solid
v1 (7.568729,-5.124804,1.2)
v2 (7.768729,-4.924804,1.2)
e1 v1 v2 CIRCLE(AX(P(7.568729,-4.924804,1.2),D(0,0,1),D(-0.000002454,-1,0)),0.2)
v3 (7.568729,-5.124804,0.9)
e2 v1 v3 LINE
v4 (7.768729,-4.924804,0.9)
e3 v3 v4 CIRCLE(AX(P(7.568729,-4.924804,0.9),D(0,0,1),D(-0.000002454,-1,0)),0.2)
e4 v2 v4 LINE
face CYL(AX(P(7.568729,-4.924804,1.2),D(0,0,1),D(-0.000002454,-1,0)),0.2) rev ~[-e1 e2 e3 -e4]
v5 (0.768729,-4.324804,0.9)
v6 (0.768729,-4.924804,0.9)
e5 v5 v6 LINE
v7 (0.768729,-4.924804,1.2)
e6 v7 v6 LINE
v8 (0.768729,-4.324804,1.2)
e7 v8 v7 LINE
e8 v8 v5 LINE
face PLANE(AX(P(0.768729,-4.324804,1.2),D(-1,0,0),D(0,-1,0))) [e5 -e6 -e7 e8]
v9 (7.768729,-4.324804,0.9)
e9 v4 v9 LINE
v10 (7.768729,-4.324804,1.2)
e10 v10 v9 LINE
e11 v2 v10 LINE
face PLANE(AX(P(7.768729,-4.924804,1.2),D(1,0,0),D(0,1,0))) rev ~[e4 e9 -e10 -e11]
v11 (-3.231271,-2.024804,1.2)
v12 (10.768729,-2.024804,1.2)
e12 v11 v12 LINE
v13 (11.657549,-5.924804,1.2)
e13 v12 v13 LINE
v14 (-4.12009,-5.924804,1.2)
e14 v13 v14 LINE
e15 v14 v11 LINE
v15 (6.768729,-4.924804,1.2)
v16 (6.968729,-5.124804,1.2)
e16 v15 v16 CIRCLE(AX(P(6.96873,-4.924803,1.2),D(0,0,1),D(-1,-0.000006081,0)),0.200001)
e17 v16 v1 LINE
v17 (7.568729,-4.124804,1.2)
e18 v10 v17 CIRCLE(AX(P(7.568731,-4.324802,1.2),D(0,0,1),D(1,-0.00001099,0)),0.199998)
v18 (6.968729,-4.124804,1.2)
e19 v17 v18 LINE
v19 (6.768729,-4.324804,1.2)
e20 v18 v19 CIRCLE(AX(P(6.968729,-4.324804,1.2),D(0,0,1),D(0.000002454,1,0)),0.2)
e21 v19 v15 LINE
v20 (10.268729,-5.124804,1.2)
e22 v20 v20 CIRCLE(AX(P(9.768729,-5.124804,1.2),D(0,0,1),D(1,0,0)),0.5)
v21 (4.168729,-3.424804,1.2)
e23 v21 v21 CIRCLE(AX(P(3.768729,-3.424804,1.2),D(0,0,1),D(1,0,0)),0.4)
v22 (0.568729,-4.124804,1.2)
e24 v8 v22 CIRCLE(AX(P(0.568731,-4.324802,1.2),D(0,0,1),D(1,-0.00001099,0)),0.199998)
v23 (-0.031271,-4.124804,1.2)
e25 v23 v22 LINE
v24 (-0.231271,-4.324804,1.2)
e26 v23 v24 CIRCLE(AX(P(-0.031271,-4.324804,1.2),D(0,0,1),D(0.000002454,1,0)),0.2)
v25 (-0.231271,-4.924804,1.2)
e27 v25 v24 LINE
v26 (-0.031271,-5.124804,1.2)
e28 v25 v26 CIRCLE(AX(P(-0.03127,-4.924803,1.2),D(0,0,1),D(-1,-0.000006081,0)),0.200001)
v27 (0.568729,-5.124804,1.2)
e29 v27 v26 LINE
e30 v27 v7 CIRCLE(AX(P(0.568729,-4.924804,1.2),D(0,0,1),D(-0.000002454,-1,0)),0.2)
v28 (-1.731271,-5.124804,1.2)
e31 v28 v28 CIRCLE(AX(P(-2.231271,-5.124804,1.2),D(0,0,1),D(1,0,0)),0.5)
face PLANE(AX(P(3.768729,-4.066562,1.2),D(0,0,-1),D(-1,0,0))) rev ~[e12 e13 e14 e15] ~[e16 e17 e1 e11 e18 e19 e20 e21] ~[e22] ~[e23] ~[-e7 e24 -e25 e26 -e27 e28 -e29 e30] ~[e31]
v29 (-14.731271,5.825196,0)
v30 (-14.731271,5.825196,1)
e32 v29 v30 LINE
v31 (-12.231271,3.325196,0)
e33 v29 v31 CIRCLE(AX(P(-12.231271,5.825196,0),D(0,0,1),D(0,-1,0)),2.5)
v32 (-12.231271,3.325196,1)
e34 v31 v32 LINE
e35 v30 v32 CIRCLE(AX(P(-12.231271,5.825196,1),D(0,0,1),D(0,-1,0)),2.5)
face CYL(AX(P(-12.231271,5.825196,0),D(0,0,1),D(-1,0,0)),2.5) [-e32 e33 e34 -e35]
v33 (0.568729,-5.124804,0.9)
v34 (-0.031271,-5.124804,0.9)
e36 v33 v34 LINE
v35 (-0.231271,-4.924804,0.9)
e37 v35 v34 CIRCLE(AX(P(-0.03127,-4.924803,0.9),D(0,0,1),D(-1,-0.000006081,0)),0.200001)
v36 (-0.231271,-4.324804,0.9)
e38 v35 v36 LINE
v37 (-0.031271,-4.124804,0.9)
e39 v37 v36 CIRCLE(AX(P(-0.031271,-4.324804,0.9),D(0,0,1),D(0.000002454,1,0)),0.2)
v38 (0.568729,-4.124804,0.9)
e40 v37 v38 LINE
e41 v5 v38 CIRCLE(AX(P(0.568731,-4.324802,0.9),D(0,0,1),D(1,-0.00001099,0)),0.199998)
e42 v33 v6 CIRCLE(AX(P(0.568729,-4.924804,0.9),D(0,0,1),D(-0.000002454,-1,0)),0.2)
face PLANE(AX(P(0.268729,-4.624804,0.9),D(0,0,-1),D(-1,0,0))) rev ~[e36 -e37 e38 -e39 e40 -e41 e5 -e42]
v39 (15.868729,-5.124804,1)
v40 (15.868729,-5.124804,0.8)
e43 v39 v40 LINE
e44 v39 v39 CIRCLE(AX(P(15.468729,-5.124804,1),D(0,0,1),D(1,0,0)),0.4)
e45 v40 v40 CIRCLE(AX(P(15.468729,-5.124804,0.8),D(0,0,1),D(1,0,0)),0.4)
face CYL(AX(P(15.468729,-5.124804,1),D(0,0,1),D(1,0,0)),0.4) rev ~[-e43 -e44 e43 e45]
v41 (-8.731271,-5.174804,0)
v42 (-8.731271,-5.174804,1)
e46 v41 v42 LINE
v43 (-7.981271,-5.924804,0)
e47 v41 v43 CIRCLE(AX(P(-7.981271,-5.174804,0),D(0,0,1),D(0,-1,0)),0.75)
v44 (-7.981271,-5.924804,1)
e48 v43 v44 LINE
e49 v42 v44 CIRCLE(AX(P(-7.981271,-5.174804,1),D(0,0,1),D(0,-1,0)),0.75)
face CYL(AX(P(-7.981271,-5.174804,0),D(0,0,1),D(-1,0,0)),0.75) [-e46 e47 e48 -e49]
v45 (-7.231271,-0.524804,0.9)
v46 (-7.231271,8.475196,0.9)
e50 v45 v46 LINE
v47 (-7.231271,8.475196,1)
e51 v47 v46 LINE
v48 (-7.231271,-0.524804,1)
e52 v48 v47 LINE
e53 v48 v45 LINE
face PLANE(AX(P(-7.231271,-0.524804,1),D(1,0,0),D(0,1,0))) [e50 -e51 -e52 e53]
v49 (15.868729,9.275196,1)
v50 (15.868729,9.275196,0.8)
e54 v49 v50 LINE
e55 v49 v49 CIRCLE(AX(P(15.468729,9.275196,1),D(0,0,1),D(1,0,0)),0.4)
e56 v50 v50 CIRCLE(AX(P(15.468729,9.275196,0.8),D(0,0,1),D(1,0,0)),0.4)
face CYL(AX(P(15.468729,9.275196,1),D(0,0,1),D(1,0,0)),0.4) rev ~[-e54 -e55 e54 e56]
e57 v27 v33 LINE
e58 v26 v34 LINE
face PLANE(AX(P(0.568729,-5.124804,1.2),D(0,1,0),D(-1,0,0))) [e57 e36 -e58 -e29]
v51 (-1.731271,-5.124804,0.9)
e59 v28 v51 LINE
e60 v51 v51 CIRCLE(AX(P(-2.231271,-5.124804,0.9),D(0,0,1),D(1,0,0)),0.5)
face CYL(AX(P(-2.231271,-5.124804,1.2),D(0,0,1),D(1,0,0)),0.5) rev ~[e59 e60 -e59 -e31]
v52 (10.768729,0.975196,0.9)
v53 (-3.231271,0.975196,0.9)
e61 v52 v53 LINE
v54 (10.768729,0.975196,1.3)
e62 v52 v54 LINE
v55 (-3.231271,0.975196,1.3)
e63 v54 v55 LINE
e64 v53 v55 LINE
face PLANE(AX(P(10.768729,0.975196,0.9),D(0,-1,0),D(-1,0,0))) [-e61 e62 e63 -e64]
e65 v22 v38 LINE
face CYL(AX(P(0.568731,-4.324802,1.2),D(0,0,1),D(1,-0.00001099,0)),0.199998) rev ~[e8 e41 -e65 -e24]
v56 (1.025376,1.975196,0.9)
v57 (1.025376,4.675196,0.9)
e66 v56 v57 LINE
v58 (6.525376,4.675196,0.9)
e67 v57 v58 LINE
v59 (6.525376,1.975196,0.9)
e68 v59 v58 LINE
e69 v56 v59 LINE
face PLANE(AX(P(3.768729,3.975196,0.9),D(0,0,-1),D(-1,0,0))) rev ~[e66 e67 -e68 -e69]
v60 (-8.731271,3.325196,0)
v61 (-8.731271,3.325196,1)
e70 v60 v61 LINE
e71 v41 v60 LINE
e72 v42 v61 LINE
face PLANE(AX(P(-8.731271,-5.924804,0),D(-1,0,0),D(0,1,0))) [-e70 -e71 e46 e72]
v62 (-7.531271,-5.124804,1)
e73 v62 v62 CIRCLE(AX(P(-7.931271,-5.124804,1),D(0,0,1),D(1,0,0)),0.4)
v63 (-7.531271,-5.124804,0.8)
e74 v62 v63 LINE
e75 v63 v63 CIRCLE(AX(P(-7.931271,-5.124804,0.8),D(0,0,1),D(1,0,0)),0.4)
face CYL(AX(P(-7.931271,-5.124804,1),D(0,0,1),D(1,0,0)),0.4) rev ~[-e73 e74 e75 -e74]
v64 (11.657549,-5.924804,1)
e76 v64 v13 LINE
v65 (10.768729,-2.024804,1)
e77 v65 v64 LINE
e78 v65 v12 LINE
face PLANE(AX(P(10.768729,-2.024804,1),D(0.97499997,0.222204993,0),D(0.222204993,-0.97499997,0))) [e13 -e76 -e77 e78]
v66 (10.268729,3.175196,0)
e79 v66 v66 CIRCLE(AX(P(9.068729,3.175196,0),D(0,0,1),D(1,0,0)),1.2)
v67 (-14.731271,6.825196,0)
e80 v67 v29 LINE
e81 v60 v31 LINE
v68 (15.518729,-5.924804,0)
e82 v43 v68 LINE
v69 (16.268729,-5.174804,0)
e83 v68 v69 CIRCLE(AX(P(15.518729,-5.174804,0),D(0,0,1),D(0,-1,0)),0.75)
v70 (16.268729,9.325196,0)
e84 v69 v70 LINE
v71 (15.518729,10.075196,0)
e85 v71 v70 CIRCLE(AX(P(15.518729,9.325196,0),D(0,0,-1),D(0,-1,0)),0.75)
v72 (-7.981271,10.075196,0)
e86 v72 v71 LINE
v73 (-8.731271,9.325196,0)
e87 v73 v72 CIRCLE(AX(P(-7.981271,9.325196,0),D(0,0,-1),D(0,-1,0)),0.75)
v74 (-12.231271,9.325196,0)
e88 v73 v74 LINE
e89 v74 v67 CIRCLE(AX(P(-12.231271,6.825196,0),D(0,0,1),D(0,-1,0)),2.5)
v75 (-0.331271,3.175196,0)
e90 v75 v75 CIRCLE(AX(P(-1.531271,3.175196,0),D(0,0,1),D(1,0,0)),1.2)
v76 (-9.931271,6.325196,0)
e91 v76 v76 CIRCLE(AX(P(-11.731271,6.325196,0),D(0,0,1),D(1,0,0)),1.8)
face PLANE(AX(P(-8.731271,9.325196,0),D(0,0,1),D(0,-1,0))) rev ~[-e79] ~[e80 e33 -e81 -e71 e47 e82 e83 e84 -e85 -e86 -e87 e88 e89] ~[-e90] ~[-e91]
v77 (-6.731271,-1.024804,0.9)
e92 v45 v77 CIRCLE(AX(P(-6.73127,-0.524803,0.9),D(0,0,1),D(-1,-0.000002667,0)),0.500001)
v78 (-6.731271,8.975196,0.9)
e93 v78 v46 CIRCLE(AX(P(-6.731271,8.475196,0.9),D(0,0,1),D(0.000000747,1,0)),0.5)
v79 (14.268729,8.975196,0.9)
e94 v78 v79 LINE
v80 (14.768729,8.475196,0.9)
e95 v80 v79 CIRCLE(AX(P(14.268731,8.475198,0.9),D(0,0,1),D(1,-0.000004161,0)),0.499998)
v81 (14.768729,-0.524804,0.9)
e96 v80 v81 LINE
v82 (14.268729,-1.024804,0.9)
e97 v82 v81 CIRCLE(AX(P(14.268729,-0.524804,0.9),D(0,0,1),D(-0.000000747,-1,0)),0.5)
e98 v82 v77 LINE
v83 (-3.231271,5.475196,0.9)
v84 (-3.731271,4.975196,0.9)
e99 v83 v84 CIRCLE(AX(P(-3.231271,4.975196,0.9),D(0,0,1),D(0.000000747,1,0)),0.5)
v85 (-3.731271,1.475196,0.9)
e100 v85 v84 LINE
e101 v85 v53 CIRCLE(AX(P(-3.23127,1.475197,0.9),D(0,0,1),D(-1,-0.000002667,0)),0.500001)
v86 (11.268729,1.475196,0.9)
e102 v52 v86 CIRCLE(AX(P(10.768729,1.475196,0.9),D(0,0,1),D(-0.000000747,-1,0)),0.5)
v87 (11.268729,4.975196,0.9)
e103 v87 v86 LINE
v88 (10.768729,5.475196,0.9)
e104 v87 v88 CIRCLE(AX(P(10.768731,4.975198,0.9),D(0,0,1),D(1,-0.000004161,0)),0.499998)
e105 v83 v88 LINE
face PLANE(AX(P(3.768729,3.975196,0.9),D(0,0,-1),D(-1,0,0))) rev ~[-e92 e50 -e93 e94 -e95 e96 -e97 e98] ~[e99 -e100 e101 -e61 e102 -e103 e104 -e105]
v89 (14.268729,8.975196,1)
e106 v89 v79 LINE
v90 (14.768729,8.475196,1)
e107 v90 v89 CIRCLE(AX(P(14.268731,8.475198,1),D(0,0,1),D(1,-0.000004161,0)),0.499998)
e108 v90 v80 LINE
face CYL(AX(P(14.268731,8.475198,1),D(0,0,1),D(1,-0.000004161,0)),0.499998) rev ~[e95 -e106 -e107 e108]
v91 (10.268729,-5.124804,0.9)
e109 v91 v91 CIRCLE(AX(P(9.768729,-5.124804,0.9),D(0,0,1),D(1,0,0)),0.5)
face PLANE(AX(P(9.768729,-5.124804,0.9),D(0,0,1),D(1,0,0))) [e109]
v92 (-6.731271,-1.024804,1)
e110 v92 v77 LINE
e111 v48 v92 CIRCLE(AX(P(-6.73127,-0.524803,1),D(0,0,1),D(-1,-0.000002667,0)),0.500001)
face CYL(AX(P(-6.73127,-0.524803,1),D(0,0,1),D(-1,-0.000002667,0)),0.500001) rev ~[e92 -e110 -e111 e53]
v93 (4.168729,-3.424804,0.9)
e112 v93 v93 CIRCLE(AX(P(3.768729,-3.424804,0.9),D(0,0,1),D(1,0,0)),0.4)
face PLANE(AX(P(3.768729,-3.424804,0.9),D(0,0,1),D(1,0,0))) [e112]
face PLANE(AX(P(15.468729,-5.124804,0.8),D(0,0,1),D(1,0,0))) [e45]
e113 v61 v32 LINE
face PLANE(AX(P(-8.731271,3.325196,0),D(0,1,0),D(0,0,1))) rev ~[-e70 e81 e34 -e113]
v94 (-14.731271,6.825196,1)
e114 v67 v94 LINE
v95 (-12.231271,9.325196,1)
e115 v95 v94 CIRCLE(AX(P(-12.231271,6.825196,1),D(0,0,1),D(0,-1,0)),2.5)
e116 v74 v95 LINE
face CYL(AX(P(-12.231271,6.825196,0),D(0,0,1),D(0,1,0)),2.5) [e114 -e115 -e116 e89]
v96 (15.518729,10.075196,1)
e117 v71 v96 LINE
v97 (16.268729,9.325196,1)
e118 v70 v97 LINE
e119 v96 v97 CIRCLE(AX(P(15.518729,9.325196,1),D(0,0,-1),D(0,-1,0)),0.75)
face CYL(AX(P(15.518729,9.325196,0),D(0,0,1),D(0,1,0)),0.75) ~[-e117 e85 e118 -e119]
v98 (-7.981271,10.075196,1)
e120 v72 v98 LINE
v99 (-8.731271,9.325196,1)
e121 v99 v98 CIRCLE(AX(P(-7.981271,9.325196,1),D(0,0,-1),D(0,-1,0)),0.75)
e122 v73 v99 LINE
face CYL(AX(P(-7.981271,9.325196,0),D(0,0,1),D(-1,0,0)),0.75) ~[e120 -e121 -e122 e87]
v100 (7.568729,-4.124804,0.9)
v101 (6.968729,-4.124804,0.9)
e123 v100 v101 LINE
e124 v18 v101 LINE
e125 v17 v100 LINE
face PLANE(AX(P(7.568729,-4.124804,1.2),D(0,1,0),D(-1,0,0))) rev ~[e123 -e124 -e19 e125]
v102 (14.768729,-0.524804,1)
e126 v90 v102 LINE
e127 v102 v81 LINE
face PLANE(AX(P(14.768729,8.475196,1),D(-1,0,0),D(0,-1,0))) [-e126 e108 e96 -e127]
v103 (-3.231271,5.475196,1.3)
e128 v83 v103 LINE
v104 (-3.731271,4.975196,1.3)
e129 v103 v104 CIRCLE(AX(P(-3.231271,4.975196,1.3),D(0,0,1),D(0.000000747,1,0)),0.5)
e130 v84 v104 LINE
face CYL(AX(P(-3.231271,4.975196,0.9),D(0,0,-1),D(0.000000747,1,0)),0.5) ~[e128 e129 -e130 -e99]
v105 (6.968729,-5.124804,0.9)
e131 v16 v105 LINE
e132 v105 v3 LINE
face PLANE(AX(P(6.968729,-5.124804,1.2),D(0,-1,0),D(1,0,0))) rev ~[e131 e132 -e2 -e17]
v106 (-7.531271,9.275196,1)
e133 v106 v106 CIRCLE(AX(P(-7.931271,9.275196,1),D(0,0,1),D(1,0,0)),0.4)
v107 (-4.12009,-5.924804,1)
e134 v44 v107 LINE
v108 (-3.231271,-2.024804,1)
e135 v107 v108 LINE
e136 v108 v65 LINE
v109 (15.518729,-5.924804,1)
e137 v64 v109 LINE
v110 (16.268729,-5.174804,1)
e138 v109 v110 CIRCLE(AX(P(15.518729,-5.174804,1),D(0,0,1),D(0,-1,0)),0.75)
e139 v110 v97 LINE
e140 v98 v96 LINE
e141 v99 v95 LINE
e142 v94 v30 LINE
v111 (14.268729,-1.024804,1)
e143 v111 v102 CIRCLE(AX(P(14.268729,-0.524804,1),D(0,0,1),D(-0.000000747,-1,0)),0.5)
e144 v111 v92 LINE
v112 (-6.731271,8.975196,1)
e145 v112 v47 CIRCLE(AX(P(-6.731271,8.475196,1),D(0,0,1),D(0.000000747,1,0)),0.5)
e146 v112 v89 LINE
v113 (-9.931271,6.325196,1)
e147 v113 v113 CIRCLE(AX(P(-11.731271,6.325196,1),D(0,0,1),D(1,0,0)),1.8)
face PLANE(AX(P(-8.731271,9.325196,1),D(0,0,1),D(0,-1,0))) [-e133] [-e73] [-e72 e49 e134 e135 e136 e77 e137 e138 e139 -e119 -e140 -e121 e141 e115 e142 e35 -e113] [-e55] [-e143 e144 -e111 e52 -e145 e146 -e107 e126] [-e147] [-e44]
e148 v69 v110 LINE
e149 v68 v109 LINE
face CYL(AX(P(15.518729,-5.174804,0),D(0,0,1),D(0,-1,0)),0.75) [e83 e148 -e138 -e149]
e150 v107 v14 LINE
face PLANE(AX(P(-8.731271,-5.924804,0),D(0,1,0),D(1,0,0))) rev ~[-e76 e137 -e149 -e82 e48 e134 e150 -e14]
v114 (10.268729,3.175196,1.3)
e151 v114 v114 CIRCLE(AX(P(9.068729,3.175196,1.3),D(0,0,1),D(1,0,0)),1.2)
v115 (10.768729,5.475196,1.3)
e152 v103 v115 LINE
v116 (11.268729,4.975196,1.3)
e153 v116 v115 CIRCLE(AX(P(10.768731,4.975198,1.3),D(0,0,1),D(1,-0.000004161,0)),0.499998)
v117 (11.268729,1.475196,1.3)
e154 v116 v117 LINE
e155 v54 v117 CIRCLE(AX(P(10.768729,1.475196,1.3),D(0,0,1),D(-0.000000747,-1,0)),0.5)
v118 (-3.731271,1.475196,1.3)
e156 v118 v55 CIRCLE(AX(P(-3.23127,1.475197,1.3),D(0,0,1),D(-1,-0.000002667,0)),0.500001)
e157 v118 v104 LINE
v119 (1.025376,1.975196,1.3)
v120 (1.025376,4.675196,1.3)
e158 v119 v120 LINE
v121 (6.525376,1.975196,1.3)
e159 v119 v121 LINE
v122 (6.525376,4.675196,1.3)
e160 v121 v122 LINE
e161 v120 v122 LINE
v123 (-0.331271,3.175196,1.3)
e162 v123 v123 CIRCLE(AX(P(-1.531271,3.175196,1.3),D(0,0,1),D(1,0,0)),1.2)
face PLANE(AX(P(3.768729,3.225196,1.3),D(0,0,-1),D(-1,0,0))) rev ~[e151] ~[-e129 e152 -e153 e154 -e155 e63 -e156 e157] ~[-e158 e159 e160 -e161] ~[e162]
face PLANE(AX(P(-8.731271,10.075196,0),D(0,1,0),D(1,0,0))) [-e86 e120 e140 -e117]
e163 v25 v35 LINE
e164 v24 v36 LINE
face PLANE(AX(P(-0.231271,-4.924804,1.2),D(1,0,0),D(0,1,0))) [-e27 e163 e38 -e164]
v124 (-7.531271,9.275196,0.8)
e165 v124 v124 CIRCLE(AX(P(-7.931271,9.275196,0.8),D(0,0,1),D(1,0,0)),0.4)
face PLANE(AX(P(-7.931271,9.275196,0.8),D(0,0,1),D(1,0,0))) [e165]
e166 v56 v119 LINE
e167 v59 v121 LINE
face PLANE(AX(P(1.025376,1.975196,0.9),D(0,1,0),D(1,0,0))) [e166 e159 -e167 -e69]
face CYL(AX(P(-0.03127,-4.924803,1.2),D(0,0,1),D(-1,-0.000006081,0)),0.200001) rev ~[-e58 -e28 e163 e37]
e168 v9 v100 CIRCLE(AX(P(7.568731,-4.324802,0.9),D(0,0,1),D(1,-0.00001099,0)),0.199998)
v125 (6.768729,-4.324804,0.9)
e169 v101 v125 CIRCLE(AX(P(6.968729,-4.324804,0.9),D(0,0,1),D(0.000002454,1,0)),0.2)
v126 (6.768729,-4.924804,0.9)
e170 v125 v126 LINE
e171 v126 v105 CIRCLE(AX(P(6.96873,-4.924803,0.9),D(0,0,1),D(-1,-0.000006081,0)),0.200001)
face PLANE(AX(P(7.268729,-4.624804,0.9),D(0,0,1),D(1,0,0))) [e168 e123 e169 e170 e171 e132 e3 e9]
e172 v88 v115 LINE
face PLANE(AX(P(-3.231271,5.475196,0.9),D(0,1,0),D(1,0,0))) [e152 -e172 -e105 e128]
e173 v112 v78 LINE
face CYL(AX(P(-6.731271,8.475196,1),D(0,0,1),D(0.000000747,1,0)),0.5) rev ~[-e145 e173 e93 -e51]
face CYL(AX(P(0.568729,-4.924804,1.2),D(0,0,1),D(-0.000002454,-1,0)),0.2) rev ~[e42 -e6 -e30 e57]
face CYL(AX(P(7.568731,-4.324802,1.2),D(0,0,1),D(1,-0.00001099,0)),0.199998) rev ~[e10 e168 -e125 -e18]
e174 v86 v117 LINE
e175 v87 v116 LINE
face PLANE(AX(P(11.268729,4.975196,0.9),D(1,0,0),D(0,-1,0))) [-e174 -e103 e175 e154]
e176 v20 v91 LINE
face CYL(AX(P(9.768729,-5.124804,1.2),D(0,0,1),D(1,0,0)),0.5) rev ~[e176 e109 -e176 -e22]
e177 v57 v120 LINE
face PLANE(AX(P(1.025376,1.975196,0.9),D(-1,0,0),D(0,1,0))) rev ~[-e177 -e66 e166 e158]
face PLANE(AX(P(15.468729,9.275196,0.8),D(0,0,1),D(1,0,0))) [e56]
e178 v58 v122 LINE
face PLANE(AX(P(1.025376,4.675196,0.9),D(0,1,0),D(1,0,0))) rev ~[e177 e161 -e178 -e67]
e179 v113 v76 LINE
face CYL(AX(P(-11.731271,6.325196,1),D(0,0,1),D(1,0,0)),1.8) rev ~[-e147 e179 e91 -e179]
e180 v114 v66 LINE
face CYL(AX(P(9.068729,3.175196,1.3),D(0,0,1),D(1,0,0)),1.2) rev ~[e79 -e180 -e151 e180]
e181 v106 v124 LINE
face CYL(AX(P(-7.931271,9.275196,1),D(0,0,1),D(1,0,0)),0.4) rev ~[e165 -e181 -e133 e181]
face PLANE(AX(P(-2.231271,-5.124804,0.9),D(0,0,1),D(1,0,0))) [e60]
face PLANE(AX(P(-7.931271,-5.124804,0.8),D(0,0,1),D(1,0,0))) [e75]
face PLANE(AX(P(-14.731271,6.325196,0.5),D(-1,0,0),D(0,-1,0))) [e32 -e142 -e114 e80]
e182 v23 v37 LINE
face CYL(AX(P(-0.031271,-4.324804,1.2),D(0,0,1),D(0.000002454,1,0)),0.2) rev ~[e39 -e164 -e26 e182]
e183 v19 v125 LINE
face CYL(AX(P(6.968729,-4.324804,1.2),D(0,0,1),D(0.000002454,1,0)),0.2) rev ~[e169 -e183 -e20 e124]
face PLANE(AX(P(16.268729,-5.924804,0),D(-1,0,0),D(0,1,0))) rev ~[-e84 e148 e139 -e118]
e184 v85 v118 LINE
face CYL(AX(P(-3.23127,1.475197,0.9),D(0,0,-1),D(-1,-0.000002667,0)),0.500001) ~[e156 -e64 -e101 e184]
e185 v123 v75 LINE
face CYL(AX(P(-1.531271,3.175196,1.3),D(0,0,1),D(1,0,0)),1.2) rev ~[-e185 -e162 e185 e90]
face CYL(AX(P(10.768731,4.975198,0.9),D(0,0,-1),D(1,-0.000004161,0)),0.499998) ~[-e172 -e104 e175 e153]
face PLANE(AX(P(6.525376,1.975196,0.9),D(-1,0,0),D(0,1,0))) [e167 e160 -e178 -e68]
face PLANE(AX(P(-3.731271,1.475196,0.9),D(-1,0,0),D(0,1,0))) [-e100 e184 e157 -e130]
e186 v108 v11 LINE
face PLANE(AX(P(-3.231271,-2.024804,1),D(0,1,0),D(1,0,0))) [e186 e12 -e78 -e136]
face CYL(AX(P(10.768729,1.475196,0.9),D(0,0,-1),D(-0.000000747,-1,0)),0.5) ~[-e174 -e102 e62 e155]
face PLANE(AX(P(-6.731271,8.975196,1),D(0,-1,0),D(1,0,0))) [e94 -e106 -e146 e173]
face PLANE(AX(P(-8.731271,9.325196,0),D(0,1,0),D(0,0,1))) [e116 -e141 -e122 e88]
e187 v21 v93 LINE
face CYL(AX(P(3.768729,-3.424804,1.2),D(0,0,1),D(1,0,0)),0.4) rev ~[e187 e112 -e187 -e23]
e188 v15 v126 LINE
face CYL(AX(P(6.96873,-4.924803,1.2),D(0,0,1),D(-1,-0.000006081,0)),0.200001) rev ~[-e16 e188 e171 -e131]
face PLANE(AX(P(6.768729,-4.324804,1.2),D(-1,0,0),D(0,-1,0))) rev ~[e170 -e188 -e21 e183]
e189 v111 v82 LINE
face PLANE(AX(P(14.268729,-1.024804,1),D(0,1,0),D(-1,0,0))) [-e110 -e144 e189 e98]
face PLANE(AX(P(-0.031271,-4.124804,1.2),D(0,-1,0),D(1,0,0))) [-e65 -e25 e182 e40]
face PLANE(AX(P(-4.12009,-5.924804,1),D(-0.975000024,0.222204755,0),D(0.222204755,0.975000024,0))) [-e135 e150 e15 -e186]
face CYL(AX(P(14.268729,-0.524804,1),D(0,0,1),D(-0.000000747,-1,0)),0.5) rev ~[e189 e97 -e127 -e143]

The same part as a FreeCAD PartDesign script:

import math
import FreeCAD as App
import Part
import Sketcher
Q = App.Units.Quantity


def edges_at(feature, points):
    """Names of the edges that pass closest to the given points."""
    edges = feature.Shape.Edges
    near = lambda p: min(range(len(edges)), key=lambda i: edges[i].distToShape(Part.Vertex(*p))[0])
    return sorted({f"Edge{near(p) + 1}" for p in points})


def add_polygon(sketch, points):
    """Adds a closed chain of lines whose ends are joined by coincident constraints."""
    first, n = sketch.GeometryCount, len(points)
    for a, b in zip(points, points[1:] + points[:1]):
        sketch.addGeometry(Part.LineSegment(App.Vector(*a, 0), App.Vector(*b, 0)), False)
    for i in range(n):
        sketch.addConstraint(Sketcher.Constraint("Coincident", first + i, 2, first + (i + 1) % n, 1))

doc = App.newDocument("Part")
params = doc.addObject("Spreadsheet::Sheet", "Params")
for row, (alias, value) in enumerate([
    ("sketch1_width", "25 mm"),
    ("sketch1_height", "16 mm"),
    ("pad1_length", "1 mm"),
    ("sketch2_radius", "0.5 mm"),
    ("sketch2_width", "21 mm"),
    ("sketch2_height", "9 mm"),
    ("pocket1_length", "0.1 mm"),
    ("fillet_radius", "0.75 mm"),
    ("sketch3_width", "14 mm"),
    ("sketch3_length", "4 mm"),
    ("pad2_length", "0.2 mm"),
    ("sketch4_radius", "0.5 mm"),
    ("sketch4_width", "14 mm"),
    ("sketch4_width2", "5.5 mm"),
    ("sketch4_height", "3.5 mm"),
    ("sketch4_height2", "2.7 mm"),
    ("pad3_length", "0.4 mm"),
    ("sketch5_diameter", "2.4 mm"),
    ("pocket2_length", "5 mm"),
    ("sketch6_diameter", "0.8 mm"),
    ("pocket3_length", "0.2 mm"),
    ("sketch7_diameter", "1 mm"),
    ("sketch7_diameter2", "0.8 mm"),
    ("sketch7_radius", "0.2 mm"),
    ("sketch7_width", "0.6 mm"),
    ("pocket4_length", "0.3 mm"),
    ("sketch8_width", "6 mm"),
    ("sketch8_height", "1 mm"),
    ("pad4_length", "6 mm"),
    ("fillet2_radius", "2.5 mm"),
    ("sketch9_diameter", "3.6 mm"),
    ("pocket5_length", "5 mm"),
], start=1):
    params.set(f"A{row}", alias)
    params.set(f"B{row}", "=" + value)
    params.setAlias(f"B{row}", alias)

body = doc.addObject("PartDesign::Body", "Body")

# Sketch on XY plane
sketch1 = body.newObject("Sketcher::SketchObject", "Sketch")
sketch1.AttachmentSupport = (doc.getObject("XY_Plane"), [""])
sketch1.MapMode = "FlatFace"
add_polygon(sketch1, [(-9, 10), (-9, -6), (16, -6), (16, 10)])  # lines 0-3
sketch1.addConstraint([
    Sketcher.Constraint("Vertical", 0),
    Sketcher.Constraint("Horizontal", 1),
    Sketcher.Constraint("Vertical", 2),
    Sketcher.Constraint("Horizontal", 3),
    Sketcher.Constraint("DistanceX", 1, 1, 1, 2, Q("25 mm")),
    Sketcher.Constraint("DistanceY", 0, 2, 0, 1, Q("16 mm")),
    Sketcher.Constraint("DistanceX", 0, 2, -1, 1, Q("8.731271 mm")),
    Sketcher.Constraint("DistanceY", 0, 2, -1, 1, Q("5.924804 mm")),
])
sketch1.setExpression("Constraints[8]", "Params.sketch1_width")
sketch1.setExpression("Constraints[9]", "Params.sketch1_height")
pad1 = body.newObject("PartDesign::Pad", "Pad")
pad1.Profile = sketch1
pad1.setExpression("Length", "Params.pad1_length")

# Sketch on XY plane
sketch2 = body.newObject("Sketcher::SketchObject", "Sketch001")
sketch2.AttachmentSupport = (doc.getObject("XY_Plane"), [""])
sketch2.MapMode = "FlatFace"
sketch2.AttachmentOffset = App.Placement(App.Vector(0, 0, 1), App.Rotation())
sketch2.addGeometry([
    Part.LineSegment(App.Vector(14.27, 8.98, 0), App.Vector(-6.73, 8.98, 0)),  # 0
    Part.ArcOfCircle(Part.Circle(App.Vector(-6.73, 8.48, 0), App.Vector(0, 0, 1), 0.5), math.radians(90), math.radians(180)),  # 1
    Part.LineSegment(App.Vector(-7.23, 8.48, 0), App.Vector(-7.23, -0.52, 0)),  # 2
    Part.ArcOfCircle(Part.Circle(App.Vector(-6.73, -0.52, 0), App.Vector(0, 0, 1), 0.5), math.radians(-180), math.radians(-90)),  # 3
    Part.LineSegment(App.Vector(-6.73, -1.02, 0), App.Vector(14.27, -1.02, 0)),  # 4
    Part.ArcOfCircle(Part.Circle(App.Vector(14.27, -0.52, 0), App.Vector(0, 0, 1), 0.5), math.radians(-90), math.radians(0)),  # 5
    Part.LineSegment(App.Vector(14.77, -0.52, 0), App.Vector(14.77, 8.48, 0)),  # 6
    Part.ArcOfCircle(Part.Circle(App.Vector(14.27, 8.48, 0), App.Vector(0, 0, 1), 0.5), math.radians(0), math.radians(90)),  # 7
], False)
sketch2.addConstraint([
    Sketcher.Constraint("Tangent", 0, 2, 1, 1),
    Sketcher.Constraint("Tangent", 1, 2, 2, 1),
    Sketcher.Constraint("Coincident", 2, 2, 3, 1),
    Sketcher.Constraint("Coincident", 3, 2, 4, 1),
    Sketcher.Constraint("Tangent", 4, 2, 5, 1),
    Sketcher.Constraint("Tangent", 5, 2, 6, 1),
    Sketcher.Constraint("Coincident", 6, 2, 7, 1),
    Sketcher.Constraint("Coincident", 7, 2, 0, 1),
    Sketcher.Constraint("Horizontal", 0),
    Sketcher.Constraint("Vertical", 2),
    Sketcher.Constraint("Horizontal", 4),
    Sketcher.Constraint("Vertical", 6),
    Sketcher.Constraint("Equal", 1, 3),
    Sketcher.Constraint("Equal", 3, 5),
    Sketcher.Constraint("Equal", 5, 7),
    Sketcher.Constraint("Horizontal", 5, 3, 2, 2),
    Sketcher.Constraint("Horizontal", 1, 2, 6, 2),
    Sketcher.Constraint("Vertical", 0, 2, 3, 2),
    Sketcher.Constraint("Vertical", 4, 2, 7, 2),
    Sketcher.Constraint("Radius", 1, Q("0.5 mm")),
    Sketcher.Constraint("DistanceX", 0, 2, 0, 1, Q("21 mm")),
    Sketcher.Constraint("DistanceY", 2, 2, 2, 1, Q("9 mm")),
    Sketcher.Constraint("DistanceY", -1, 1, 7, 3, Q("8.475198 mm")),
    Sketcher.Constraint("DistanceX", 1, 3, -1, 1, Q("6.731271 mm")),
])
sketch2.setExpression("Constraints[19]", "Params.sketch2_radius")
sketch2.setExpression("Constraints[20]", "Params.sketch2_width")
sketch2.setExpression("Constraints[21]", "Params.sketch2_height")
pocket1 = body.newObject("PartDesign::Pocket", "Pocket")
pocket1.Profile = sketch2
pocket1.setExpression("Length", "Params.pocket1_length")
doc.recompute()

fillet = body.newObject("PartDesign::Fillet", "Fillet")
fillet.Base = (pocket1, edges_at(pocket1, [
    (-8.731, 10.075, 0.5),
    (-8.731, -5.925, 0.5),
    (16.269, -5.925, 0.5),
    (16.269, 10.075, 0.5),
]))
fillet.setExpression("Radius", "Params.fillet_radius")

# Sketch on XY plane
sketch3 = body.newObject("Sketcher::SketchObject", "Sketch002")
sketch3.AttachmentSupport = (doc.getObject("XY_Plane"), [""])
sketch3.MapMode = "FlatFace"
sketch3.AttachmentOffset = App.Placement(App.Vector(0, 0, 1), App.Rotation())
add_polygon(sketch3, [(-3.2, -2), (-4.1, -5.9), (11.7, -5.9), (10.8, -2)])  # lines 0-3
sketch3.addConstraint([
    Sketcher.Constraint("Horizontal", 1),
    Sketcher.Constraint("Horizontal", 3),
    Sketcher.Constraint("Equal", 0, 2),
    Sketcher.Constraint("DistanceX", 3, 2, 3, 1, Q("14 mm")),
    Sketcher.Constraint("Distance", 0, Q("4 mm")),
    Sketcher.Constraint("DistanceY", 1, 2, 2, 2, Q("3.9 mm")),
    Sketcher.Constraint("DistanceX", 0, 2, -1, 1, Q("4.12009 mm")),
    Sketcher.Constraint("DistanceY", 0, 2, -1, 1, Q("5.924804 mm")),
])
sketch3.setExpression("Constraints[7]", "Params.sketch3_width")
sketch3.setExpression("Constraints[8]", "Params.sketch3_length")
pad2 = body.newObject("PartDesign::Pad", "Pad001")
pad2.Profile = sketch3
pad2.setExpression("Length", "Params.pad2_length")

# Sketch on XY plane
sketch4 = body.newObject("Sketcher::SketchObject", "Sketch003")
sketch4.AttachmentSupport = (doc.getObject("XY_Plane"), [""])
sketch4.MapMode = "FlatFace"
sketch4.AttachmentOffset = App.Placement(App.Vector(0, 0, 0.9), App.Rotation())
sketch4.addGeometry(Part.LineSegment(App.Vector(10.77, 5.48, 0), App.Vector(-3.23, 5.48, 0)), False)  # 0
sketch4.addGeometry(Part.ArcOfCircle(Part.Circle(App.Vector(-3.23, 4.98, 0), App.Vector(0, 0, 1), 0.5), math.radians(90), math.radians(180)), False)  # 1
sketch4.addGeometry(Part.LineSegment(App.Vector(-3.73, 4.98, 0), App.Vector(-3.73, 1.48, 0)), False)  # 2
sketch4.addGeometry(Part.ArcOfCircle(Part.Circle(App.Vector(-3.23, 1.48, 0), App.Vector(0, 0, 1), 0.5), math.radians(-180), math.radians(-90)), False)  # 3
sketch4.addGeometry(Part.LineSegment(App.Vector(-3.23, 0.98, 0), App.Vector(10.77, 0.98, 0)), False)  # 4
sketch4.addGeometry(Part.ArcOfCircle(Part.Circle(App.Vector(10.77, 1.48, 0), App.Vector(0, 0, 1), 0.5), math.radians(-90), math.radians(0)), False)  # 5
sketch4.addGeometry(Part.LineSegment(App.Vector(11.27, 1.48, 0), App.Vector(11.27, 4.98, 0)), False)  # 6
sketch4.addGeometry(Part.ArcOfCircle(Part.Circle(App.Vector(10.77, 4.98, 0), App.Vector(0, 0, 1), 0.5), math.radians(0), math.radians(90)), False)  # 7
add_polygon(sketch4, [(1.03, 1.98), (1.03, 4.68), (6.53, 4.68), (6.53, 1.98)])  # lines 8-11
sketch4.addConstraint([
    Sketcher.Constraint("Tangent", 0, 2, 1, 1),
    Sketcher.Constraint("Tangent", 1, 2, 2, 1),
    Sketcher.Constraint("Coincident", 2, 2, 3, 1),
    Sketcher.Constraint("Coincident", 3, 2, 4, 1),
    Sketcher.Constraint("Tangent", 4, 2, 5, 1),
    Sketcher.Constraint("Tangent", 5, 2, 6, 1),
    Sketcher.Constraint("Coincident", 6, 2, 7, 1),
    Sketcher.Constraint("Coincident", 7, 2, 0, 1),
    Sketcher.Constraint("Horizontal", 0),
    Sketcher.Constraint("Vertical", 2),
    Sketcher.Constraint("Horizontal", 4),
    Sketcher.Constraint("Vertical", 6),
    Sketcher.Constraint("Vertical", 8),
    Sketcher.Constraint("Horizontal", 9),
    Sketcher.Constraint("Vertical", 10),
    Sketcher.Constraint("Horizontal", 11),
    Sketcher.Constraint("Equal", 1, 3),
    Sketcher.Constraint("Equal", 3, 5),
    Sketcher.Constraint("Equal", 5, 7),
    Sketcher.Constraint("Horizontal", 5, 3, 2, 2),
    Sketcher.Constraint("Horizontal", 1, 2, 6, 2),
    Sketcher.Constraint("Vertical", 0, 2, 3, 2),
    Sketcher.Constraint("Vertical", 4, 2, 7, 2),
    Sketcher.Constraint("Radius", 1, Q("0.5 mm")),
    Sketcher.Constraint("DistanceX", 0, 2, 0, 1, Q("14 mm")),
    Sketcher.Constraint("DistanceX", 9, 1, 9, 2, Q("5.5 mm")),
    Sketcher.Constraint("DistanceY", 2, 2, 2, 1, Q("3.5 mm")),
    Sketcher.Constraint("DistanceY", 8, 1, 8, 2, Q("2.7 mm")),
    Sketcher.Constraint("DistanceY", 4, 2, 10, 2, Q("1 mm")),
    Sketcher.Constraint("DistanceY", -1, 1, 7, 3, Q("4.975198 mm")),
    Sketcher.Constraint("DistanceX", 1, 3, -1, 1, Q("3.231271 mm")),
    Sketcher.Constraint("DistanceX", -1, 1, 8, 2, Q("1.025376 mm")),
])
sketch4.setExpression("Constraints[27]", "Params.sketch4_radius")
sketch4.setExpression("Constraints[28]", "Params.sketch4_width")
sketch4.setExpression("Constraints[29]", "Params.sketch4_width2")
sketch4.setExpression("Constraints[30]", "Params.sketch4_height")
sketch4.setExpression("Constraints[31]", "Params.sketch4_height2")
pad3 = body.newObject("PartDesign::Pad", "Pad002")
pad3.Profile = sketch4
pad3.setExpression("Length", "Params.pad3_length")

# Sketch on XY plane
sketch5 = body.newObject("Sketcher::SketchObject", "Sketch004")
sketch5.AttachmentSupport = (doc.getObject("XY_Plane"), [""])
sketch5.MapMode = "FlatFace"
sketch5.AttachmentOffset = App.Placement(App.Vector(0, 0, 1.3), App.Rotation())
sketch5.addGeometry([
    Part.Circle(App.Vector(-1.5, 3.2, 0), App.Vector(0, 0, 1), 1.2),
    Part.Circle(App.Vector(9.1, 3.2, 0), App.Vector(0, 0, 1), 1.2),
], False)
sketch5.addConstraint([
    Sketcher.Constraint("Equal", 0, 1),
    Sketcher.Constraint("Horizontal", 0, 3, 1, 3),
    Sketcher.Constraint("Diameter", 0, Q("2.4 mm")),
    Sketcher.Constraint("DistanceX", 0, 3, 1, 3, Q("10.6 mm")),
    Sketcher.Constraint("DistanceX", 0, 3, -1, 1, Q("1.531271 mm")),
    Sketcher.Constraint("DistanceY", -1, 1, 0, 3, Q("3.175196 mm")),
])
sketch5.setExpression("Constraints[2]", "Params.sketch5_diameter")
pocket2 = body.newObject("PartDesign::Pocket", "Pocket001")
pocket2.Profile = sketch5
pocket2.setExpression("Length", "Params.pocket2_length")

# Sketch on XY plane
sketch6 = body.newObject("Sketcher::SketchObject", "Sketch005")
sketch6.AttachmentSupport = (doc.getObject("XY_Plane"), [""])
sketch6.MapMode = "FlatFace"
sketch6.AttachmentOffset = App.Placement(App.Vector(0, 0, 1), App.Rotation())
sketch6.addGeometry([
    Part.Circle(App.Vector(-7.93, 9.28, 0), App.Vector(0, 0, 1), 0.4),
    Part.Circle(App.Vector(-7.93, -5.12, 0), App.Vector(0, 0, 1), 0.4),
    Part.Circle(App.Vector(15.47, -5.12, 0), App.Vector(0, 0, 1), 0.4),
    Part.Circle(App.Vector(15.47, 9.28, 0), App.Vector(0, 0, 1), 0.4),
], False)
sketch6.addConstraint([
    Sketcher.Constraint("Equal", 0, 1),
    Sketcher.Constraint("Equal", 1, 2),
    Sketcher.Constraint("Equal", 2, 3),
    Sketcher.Constraint("Horizontal", 1, 3, 2, 3),
    Sketcher.Constraint("Horizontal", 0, 3, 3, 3),
    Sketcher.Constraint("Vertical", 0, 3, 1, 3),
    Sketcher.Constraint("Vertical", 2, 3, 3, 3),
    Sketcher.Constraint("Diameter", 0, Q("0.8 mm")),
    Sketcher.Constraint("DistanceY", 1, 3, 0, 3, Q("14.4 mm")),
    Sketcher.Constraint("DistanceX", 1, 3, 2, 3, Q("23.4 mm")),
    Sketcher.Constraint("DistanceX", 0, 3, -1, 1, Q("7.931271 mm")),
    Sketcher.Constraint("DistanceY", -1, 1, 0, 3, Q("9.275196 mm")),
])
sketch6.setExpression("Constraints[7]", "Params.sketch6_diameter")
pocket3 = body.newObject("PartDesign::Pocket", "Pocket002")
pocket3.Profile = sketch6
pocket3.setExpression("Length", "Params.pocket3_length")

# Sketch on XY plane
sketch7 = body.newObject("Sketcher::SketchObject", "Sketch006")
sketch7.AttachmentSupport = (doc.getObject("XY_Plane"), [""])
sketch7.MapMode = "FlatFace"
sketch7.AttachmentOffset = App.Placement(App.Vector(0, 0, 1.2), App.Rotation())
sketch7.addGeometry([
    Part.Circle(App.Vector(3.77, -3.42, 0), App.Vector(0, 0, 1), 0.4),  # 0
    Part.Circle(App.Vector(-2.23, -5.12, 0), App.Vector(0, 0, 1), 0.5),  # 1
    Part.Circle(App.Vector(9.77, -5.12, 0), App.Vector(0, 0, 1), 0.5),  # 2
    Part.LineSegment(App.Vector(0.57, -4.12, 0), App.Vector(-0.03, -4.12, 0)),  # 3
    Part.ArcOfCircle(Part.Circle(App.Vector(-0.03, -4.32, 0), App.Vector(0, 0, 1), 0.2), math.radians(90), math.radians(180)),  # 4
    Part.LineSegment(App.Vector(-0.23, -4.32, 0), App.Vector(-0.23, -4.92, 0)),  # 5
    Part.ArcOfCircle(Part.Circle(App.Vector(-0.03, -4.92, 0), App.Vector(0, 0, 1), 0.2), math.radians(-180), math.radians(-90)),  # 6
    Part.LineSegment(App.Vector(-0.03, -5.12, 0), App.Vector(0.57, -5.12, 0)),  # 7
    Part.ArcOfCircle(Part.Circle(App.Vector(0.57, -4.92, 0), App.Vector(0, 0, 1), 0.2), math.radians(-90), math.radians(0)),  # 8
    Part.LineSegment(App.Vector(0.77, -4.92, 0), App.Vector(0.77, -4.32, 0)),  # 9
    Part.ArcOfCircle(Part.Circle(App.Vector(0.57, -4.32, 0), App.Vector(0, 0, 1), 0.2), math.radians(0), math.radians(90)),  # 10
    Part.LineSegment(App.Vector(7.57, -4.12, 0), App.Vector(6.97, -4.12, 0)),  # 11
    Part.ArcOfCircle(Part.Circle(App.Vector(6.97, -4.32, 0), App.Vector(0, 0, 1), 0.2), math.radians(90), math.radians(180)),  # 12
    Part.LineSegment(App.Vector(6.77, -4.32, 0), App.Vector(6.77, -4.92, 0)),  # 13
    Part.ArcOfCircle(Part.Circle(App.Vector(6.97, -4.92, 0), App.Vector(0, 0, 1), 0.2), math.radians(-180), math.radians(-90)),  # 14
    Part.LineSegment(App.Vector(6.97, -5.12, 0), App.Vector(7.57, -5.12, 0)),  # 15
    Part.ArcOfCircle(Part.Circle(App.Vector(7.57, -4.92, 0), App.Vector(0, 0, 1), 0.2), math.radians(-90), math.radians(0)),  # 16
    Part.LineSegment(App.Vector(7.77, -4.92, 0), App.Vector(7.77, -4.32, 0)),  # 17
    Part.ArcOfCircle(Part.Circle(App.Vector(7.57, -4.32, 0), App.Vector(0, 0, 1), 0.2), math.radians(0), math.radians(90)),  # 18
], False)
sketch7.addConstraint([
    Sketcher.Constraint("Coincident", 3, 2, 4, 1),
    Sketcher.Constraint("Coincident", 4, 2, 5, 1),
    Sketcher.Constraint("Coincident", 5, 2, 6, 1),
    Sketcher.Constraint("Coincident", 6, 2, 7, 1),
    Sketcher.Constraint("Coincident", 7, 2, 8, 1),
    Sketcher.Constraint("Coincident", 8, 2, 9, 1),
    Sketcher.Constraint("Coincident", 9, 2, 10, 1),
    Sketcher.Constraint("Coincident", 10, 2, 3, 1),
    Sketcher.Constraint("Coincident", 11, 2, 12, 1),
    Sketcher.Constraint("Coincident", 12, 2, 13, 1),
    Sketcher.Constraint("Coincident", 13, 2, 14, 1),
    Sketcher.Constraint("Coincident", 14, 2, 15, 1),
    Sketcher.Constraint("Coincident", 15, 2, 16, 1),
    Sketcher.Constraint("Coincident", 16, 2, 17, 1),
    Sketcher.Constraint("Coincident", 17, 2, 18, 1),
    Sketcher.Constraint("Coincident", 18, 2, 11, 1),
    Sketcher.Constraint("Horizontal", 3),
    Sketcher.Constraint("Vertical", 5),
    Sketcher.Constraint("Horizontal", 7),
    Sketcher.Constraint("Vertical", 9),
    Sketcher.Constraint("Horizontal", 11),
    Sketcher.Constraint("Vertical", 13),
    Sketcher.Constraint("Horizontal", 15),
    Sketcher.Constraint("Vertical", 17),
    Sketcher.Constraint("Equal", 1, 2),
    Sketcher.Constraint("Equal", 4, 6),
    Sketcher.Constraint("Equal", 6, 8),
    Sketcher.Constraint("Equal", 8, 10),
    Sketcher.Constraint("Equal", 10, 12),
    Sketcher.Constraint("Equal", 12, 14),
    Sketcher.Constraint("Equal", 14, 16),
    Sketcher.Constraint("Equal", 16, 18),
    Sketcher.Constraint("Horizontal", 1, 3, 2, 3),
    Sketcher.Constraint("Horizontal", 10, 3, 12, 3),
    Sketcher.Constraint("Horizontal", 8, 3, 14, 3),
    Sketcher.Constraint("Horizontal", 12, 3, 4, 2),
    Sketcher.Constraint("Horizontal", 16, 3, 5, 2),
    Sketcher.Constraint("Horizontal", 2, 3, 6, 2),
    Sketcher.Constraint("Horizontal", 5, 2, 8, 2),
    Sketcher.Constraint("Horizontal", 4, 2, 9, 2),
    Sketcher.Constraint("Horizontal", 9, 2, 12, 2),
    Sketcher.Constraint("Horizontal", 8, 2, 13, 2),
    Sketcher.Constraint("Horizontal", 13, 2, 16, 2),
    Sketcher.Constraint("Horizontal", 12, 2, 17, 2),
    Sketcher.Constraint("Vertical", 6, 3, 3, 2),
    Sketcher.Constraint("Vertical", 3, 2, 6, 2),
    Sketcher.Constraint("Vertical", 8, 3, 7, 2),
    Sketcher.Constraint("Vertical", 7, 2, 10, 2),
    Sketcher.Constraint("Vertical", 14, 3, 11, 2),
    Sketcher.Constraint("Vertical", 11, 2, 14, 2),
    Sketcher.Constraint("Vertical", 16, 3, 15, 2),
    Sketcher.Constraint("Vertical", 15, 2, 18, 2),
    Sketcher.Constraint("Equal", 7, 11),
    Sketcher.Constraint("Equal", 15, 5),
    Sketcher.Constraint("Diameter", 1, Q("1 mm")),
    Sketcher.Constraint("Diameter", 0, Q("0.8 mm")),
    Sketcher.Constraint("Radius", 4, Q("0.2 mm")),
    Sketcher.Constraint("DistanceX", 3, 2, 3, 1, Q("0.6 mm")),
    Sketcher.Constraint("DistanceX", 1, 3, 0, 3, Q("6 mm")),
    Sketcher.Constraint("DistanceX", 0, 3, 2, 3, Q("6 mm")),
    Sketcher.Constraint("DistanceX", 4, 3, 12, 3, Q("7 mm")),
    Sketcher.Constraint("DistanceY", 1, 3, 0, 3, Q("1.7 mm")),
    Sketcher.Constraint("DistanceX", 1, 3, 4, 3, Q("2.2 mm")),
    Sketcher.Constraint("DistanceY", 10, 3, -1, 1, Q("4.324802 mm")),
    Sketcher.Constraint("DistanceX", -1, 1, 0, 3, Q("3.768729 mm")),
])
sketch7.setExpression("Constraints[54]", "Params.sketch7_diameter")
sketch7.setExpression("Constraints[55]", "Params.sketch7_diameter2")
sketch7.setExpression("Constraints[56]", "Params.sketch7_radius")
sketch7.setExpression("Constraints[57]", "Params.sketch7_width")
pocket4 = body.newObject("PartDesign::Pocket", "Pocket003")
pocket4.Profile = sketch7
pocket4.setExpression("Length", "Params.pocket4_length")

# Sketch on YZ plane
sketch8 = body.newObject("Sketcher::SketchObject", "Sketch007")
sketch8.AttachmentSupport = (doc.getObject("YZ_Plane"), [""])
sketch8.MapMode = "FlatFace"
sketch8.AttachmentOffset = App.Placement(App.Vector(0, 0, -8.731271), App.Rotation())
add_polygon(sketch8, [(9.3, 1), (9.3, 0), (3.3, 0), (3.3, 1)])  # lines 0-3
sketch8.addConstraint([
    Sketcher.Constraint("Vertical", 0),
    Sketcher.Constraint("Horizontal", 1),
    Sketcher.Constraint("Vertical", 2),
    Sketcher.Constraint("Horizontal", 3),
    Sketcher.Constraint("PointOnObject", 0, 2, -1),
    Sketcher.Constraint("DistanceX", 1, 2, 1, 1, Q("6 mm")),
    Sketcher.Constraint("DistanceY", 0, 2, 0, 1, Q("1 mm")),
    Sketcher.Constraint("DistanceX", -1, 1, 0, 2, Q("9.325196 mm")),
])
sketch8.setExpression("Constraints[9]", "Params.sketch8_width")
sketch8.setExpression("Constraints[10]", "Params.sketch8_height")
pad4 = body.newObject("PartDesign::Pad", "Pad003")
pad4.Profile = sketch8
pad4.setExpression("Length", "Params.pad4_length")
pad4.Reversed = True
doc.recompute()

fillet2 = body.newObject("PartDesign::Fillet", "Fillet001")
fillet2.Base = (pad4, edges_at(pad4, [(-14.731, 3.325, 0.5), (-14.731, 9.325, 0.5)]))
fillet2.setExpression("Radius", "Params.fillet2_radius")

# Sketch on XY plane
sketch9 = body.newObject("Sketcher::SketchObject", "Sketch008")
sketch9.AttachmentSupport = (doc.getObject("XY_Plane"), [""])
sketch9.MapMode = "FlatFace"
sketch9.AttachmentOffset = App.Placement(App.Vector(0, 0, 1), App.Rotation())
sketch9.addGeometry(Part.Circle(App.Vector(-11.7, 6.3, 0), App.Vector(0, 0, 1), 1.8), False)
sketch9.addConstraint([
    Sketcher.Constraint("Diameter", 0, Q("3.6 mm")),
    Sketcher.Constraint("DistanceX", 0, 3, -1, 1, Q("11.731271 mm")),
    Sketcher.Constraint("DistanceY", -1, 1, 0, 3, Q("6.325196 mm")),
])
sketch9.setExpression("Constraints[0]", "Params.sketch9_diameter")
pocket5 = body.newObject("PartDesign::Pocket", "Pocket004")
pocket5.Profile = sketch9
pocket5.setExpression("Length", "Params.pocket5_length")

doc.recompute()
